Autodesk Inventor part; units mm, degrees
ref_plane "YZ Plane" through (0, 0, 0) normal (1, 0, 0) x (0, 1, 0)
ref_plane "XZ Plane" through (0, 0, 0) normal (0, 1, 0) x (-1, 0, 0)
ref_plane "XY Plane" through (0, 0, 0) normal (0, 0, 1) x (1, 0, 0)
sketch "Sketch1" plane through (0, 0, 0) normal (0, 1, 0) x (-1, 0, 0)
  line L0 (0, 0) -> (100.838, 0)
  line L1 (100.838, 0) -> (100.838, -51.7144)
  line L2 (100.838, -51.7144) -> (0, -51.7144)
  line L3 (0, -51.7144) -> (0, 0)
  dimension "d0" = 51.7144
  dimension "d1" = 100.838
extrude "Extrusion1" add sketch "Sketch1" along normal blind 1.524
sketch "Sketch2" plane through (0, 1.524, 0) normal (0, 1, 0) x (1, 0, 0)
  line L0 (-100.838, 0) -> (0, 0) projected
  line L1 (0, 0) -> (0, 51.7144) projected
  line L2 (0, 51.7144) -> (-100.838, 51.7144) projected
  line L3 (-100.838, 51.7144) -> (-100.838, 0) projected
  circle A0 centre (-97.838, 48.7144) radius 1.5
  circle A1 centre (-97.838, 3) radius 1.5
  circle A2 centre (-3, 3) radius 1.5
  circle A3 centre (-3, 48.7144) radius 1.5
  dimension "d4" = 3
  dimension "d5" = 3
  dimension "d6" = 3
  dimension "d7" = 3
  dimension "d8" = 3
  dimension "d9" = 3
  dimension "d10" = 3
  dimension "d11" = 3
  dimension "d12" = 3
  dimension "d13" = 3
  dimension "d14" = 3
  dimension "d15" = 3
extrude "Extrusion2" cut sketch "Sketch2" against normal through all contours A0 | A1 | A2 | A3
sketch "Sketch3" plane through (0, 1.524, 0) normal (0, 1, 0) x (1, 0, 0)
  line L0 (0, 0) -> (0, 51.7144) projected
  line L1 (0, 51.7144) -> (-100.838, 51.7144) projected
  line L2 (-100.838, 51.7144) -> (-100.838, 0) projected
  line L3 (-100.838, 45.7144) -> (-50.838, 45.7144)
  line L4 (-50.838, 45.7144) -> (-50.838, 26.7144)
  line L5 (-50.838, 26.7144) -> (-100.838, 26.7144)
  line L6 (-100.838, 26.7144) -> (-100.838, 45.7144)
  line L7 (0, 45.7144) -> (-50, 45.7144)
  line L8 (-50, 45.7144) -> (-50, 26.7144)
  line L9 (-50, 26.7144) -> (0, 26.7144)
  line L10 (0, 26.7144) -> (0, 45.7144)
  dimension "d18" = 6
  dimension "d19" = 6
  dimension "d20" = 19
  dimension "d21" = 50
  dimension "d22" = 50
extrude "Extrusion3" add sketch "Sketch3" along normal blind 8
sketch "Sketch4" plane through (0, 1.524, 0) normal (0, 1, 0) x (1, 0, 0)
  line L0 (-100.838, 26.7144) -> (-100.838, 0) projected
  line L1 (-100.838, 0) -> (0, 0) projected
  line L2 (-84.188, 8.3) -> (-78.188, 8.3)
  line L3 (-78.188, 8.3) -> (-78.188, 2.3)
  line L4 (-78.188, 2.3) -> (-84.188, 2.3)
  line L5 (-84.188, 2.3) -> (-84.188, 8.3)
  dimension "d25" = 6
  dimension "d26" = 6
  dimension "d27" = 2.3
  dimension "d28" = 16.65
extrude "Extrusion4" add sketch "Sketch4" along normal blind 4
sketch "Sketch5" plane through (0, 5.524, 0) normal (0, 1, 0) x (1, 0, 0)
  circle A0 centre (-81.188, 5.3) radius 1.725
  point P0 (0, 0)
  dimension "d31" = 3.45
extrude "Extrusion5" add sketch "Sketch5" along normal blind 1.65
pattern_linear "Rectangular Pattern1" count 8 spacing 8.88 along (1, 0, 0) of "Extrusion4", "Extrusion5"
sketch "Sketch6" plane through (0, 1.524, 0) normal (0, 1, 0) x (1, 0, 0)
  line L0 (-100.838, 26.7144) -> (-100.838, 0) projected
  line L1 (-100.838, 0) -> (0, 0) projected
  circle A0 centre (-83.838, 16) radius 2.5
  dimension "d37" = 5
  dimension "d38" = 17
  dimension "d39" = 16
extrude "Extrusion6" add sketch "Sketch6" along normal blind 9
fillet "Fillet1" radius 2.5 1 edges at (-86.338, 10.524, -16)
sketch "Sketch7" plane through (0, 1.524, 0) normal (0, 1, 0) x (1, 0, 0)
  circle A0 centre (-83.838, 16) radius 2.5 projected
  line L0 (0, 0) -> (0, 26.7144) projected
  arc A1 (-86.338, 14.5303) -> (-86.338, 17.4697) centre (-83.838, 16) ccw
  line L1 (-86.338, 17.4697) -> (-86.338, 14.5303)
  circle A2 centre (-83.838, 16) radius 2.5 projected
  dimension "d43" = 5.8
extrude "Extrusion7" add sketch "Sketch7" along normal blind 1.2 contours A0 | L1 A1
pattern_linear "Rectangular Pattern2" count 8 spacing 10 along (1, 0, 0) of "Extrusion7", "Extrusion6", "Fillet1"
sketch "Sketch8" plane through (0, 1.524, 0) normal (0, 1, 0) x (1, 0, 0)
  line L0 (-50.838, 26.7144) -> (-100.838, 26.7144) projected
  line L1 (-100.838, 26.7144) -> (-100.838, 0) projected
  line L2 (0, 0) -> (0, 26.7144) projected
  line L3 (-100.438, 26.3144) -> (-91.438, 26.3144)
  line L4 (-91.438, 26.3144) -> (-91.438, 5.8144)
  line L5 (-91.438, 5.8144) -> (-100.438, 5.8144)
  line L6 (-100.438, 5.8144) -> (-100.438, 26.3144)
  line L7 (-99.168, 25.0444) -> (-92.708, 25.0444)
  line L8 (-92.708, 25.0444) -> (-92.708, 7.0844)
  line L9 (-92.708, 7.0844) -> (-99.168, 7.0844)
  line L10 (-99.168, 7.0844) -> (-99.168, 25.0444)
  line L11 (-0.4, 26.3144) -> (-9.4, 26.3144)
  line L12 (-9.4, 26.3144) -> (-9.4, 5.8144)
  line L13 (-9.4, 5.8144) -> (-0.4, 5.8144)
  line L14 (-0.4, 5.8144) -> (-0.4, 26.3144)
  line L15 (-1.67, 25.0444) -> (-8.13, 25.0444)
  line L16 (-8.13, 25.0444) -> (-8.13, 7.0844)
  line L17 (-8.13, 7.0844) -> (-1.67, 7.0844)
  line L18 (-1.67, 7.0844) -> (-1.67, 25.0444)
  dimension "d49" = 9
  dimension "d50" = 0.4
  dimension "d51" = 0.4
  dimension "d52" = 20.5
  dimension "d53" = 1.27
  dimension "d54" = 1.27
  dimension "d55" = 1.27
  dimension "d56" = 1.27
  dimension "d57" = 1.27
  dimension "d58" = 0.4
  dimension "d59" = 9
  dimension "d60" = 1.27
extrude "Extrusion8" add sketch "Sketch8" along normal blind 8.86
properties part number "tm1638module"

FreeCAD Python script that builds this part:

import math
import FreeCAD as App
import Part
import Sketcher

V = App.Vector
Q = App.Units.Quantity


def edges_at(feature, points):
    """Names of the edges that pass closest to the given points."""
    edges = feature.Shape.Edges
    near = lambda p: min(range(len(edges)), key=lambda i: edges[i].distToShape(Part.Vertex(*p))[0])
    return sorted({f"Edge{near(p) + 1}" for p in points})

doc = App.newDocument("Part")
body = doc.addObject("PartDesign::Body", "Body")

sketch1 = doc.addObject("Sketcher::SketchObject", "Sketch")
body.addObject(sketch1)
sketch1.AttachmentSupport = (doc.XZ_Plane, [""])
sketch1.MapMode = "FlatFace"
sketch1.addGeometry([
    Part.LineSegment(V(-101, 0, 0), V(0, 0, 0)),
    Part.LineSegment(V(0, 0, 0), V(0, -52, 0)),
    Part.LineSegment(V(0, -52, 0), V(-101, -52, 0)),
    Part.LineSegment(V(-101, -52, 0), V(-101, 0, 0)),
], False)
sketch1.addConstraint([
    Sketcher.Constraint("Coincident", 0, 2, 1, 1),
    Sketcher.Constraint("Coincident", 1, 2, 2, 1),
    Sketcher.Constraint("Coincident", 2, 2, 3, 1),
    Sketcher.Constraint("Coincident", 3, 2, 0, 1),
    Sketcher.Constraint("Horizontal", 0),
    Sketcher.Constraint("Vertical", 1),
    Sketcher.Constraint("Horizontal", 2),
    Sketcher.Constraint("Vertical", 3),
    Sketcher.Constraint("Coincident", 0, 2, -1, 1),
    Sketcher.Constraint("DistanceX", 0, 1, 0, 2, Q("100.838 mm")),
    Sketcher.Constraint("DistanceY", 1, 2, 1, 1, Q("51.7144 mm")),
])
pad1 = doc.addObject("PartDesign::Pad", "Pad")
body.addObject(pad1)
pad1.Profile = sketch1
pad1.Length = 1.524
pad1.Reversed = True

sketch2 = doc.addObject("Sketcher::SketchObject", "Sketch001")
body.addObject(sketch2)
sketch2.AttachmentSupport = (doc.XZ_Plane, [""])
sketch2.MapMode = "FlatFace"
sketch2.AttachmentOffset = App.Placement(V(0, 0, -1.524), App.Rotation())
sketch2.addGeometry([
    Part.Circle(V(-97.8, -48.7, 0), V(0, 0, 1), 1.5),
    Part.Circle(V(-97.8, -3, 0), V(0, 0, 1), 1.5),
    Part.Circle(V(-3, -3, 0), V(0, 0, 1), 1.5),
    Part.Circle(V(-3, -48.7, 0), V(0, 0, 1), 1.5),
], False)
sketch2.addConstraint([
    Sketcher.Constraint("Equal", 0, 1),
    Sketcher.Constraint("Equal", 1, 2),
    Sketcher.Constraint("Equal", 2, 3),
    Sketcher.Constraint("Horizontal", 1, 3, 2, 3),
    Sketcher.Constraint("Horizontal", 0, 3, 3, 3),
    Sketcher.Constraint("Vertical", 0, 3, 1, 3),
    Sketcher.Constraint("Vertical", 2, 3, 3, 3),
    Sketcher.Constraint("Diameter", 0, Q("3 mm")),
    Sketcher.Constraint("DistanceY", 1, 3, -1, 1, Q("3 mm")),
    Sketcher.Constraint("DistanceX", 2, 3, -1, 1, Q("3 mm")),
    Sketcher.Constraint("DistanceX", 0, 3, -1, 1, Q("97.838 mm")),
    Sketcher.Constraint("DistanceY", 0, 3, -1, 1, Q("48.7144 mm")),
])
pocket1 = doc.addObject("PartDesign::Pocket", "Pocket")
body.addObject(pocket1)
pocket1.Profile = sketch2
pocket1.Type = "ThroughAll"
pocket1.Reversed = True

sketch3 = doc.addObject("Sketcher::SketchObject", "Sketch002")
body.addObject(sketch3)
sketch3.AttachmentSupport = (doc.XZ_Plane, [""])
sketch3.MapMode = "FlatFace"
sketch3.AttachmentOffset = App.Placement(V(0, 0, -1.524), App.Rotation())
sketch3.addGeometry([
    Part.LineSegment(V(-50, -27, 0), V(0, -27, 0)),
    Part.LineSegment(V(0, -27, 0), V(0, -46, 0)),
    Part.LineSegment(V(0, -46, 0), V(-50, -46, 0)),
    Part.LineSegment(V(-50, -46, 0), V(-50, -27, 0)),
    Part.LineSegment(V(-51, -46, 0), V(-101, -46, 0)),
    Part.LineSegment(V(-101, -46, 0), V(-101, -27, 0)),
    Part.LineSegment(V(-101, -27, 0), V(-51, -27, 0)),
    Part.LineSegment(V(-51, -27, 0), V(-51, -46, 0)),
], False)
sketch3.addConstraint([
    Sketcher.Constraint("Coincident", 0, 2, 1, 1),
    Sketcher.Constraint("Coincident", 1, 2, 2, 1),
    Sketcher.Constraint("Coincident", 2, 2, 3, 1),
    Sketcher.Constraint("Coincident", 3, 2, 0, 1),
    Sketcher.Constraint("Coincident", 4, 2, 5, 1),
    Sketcher.Constraint("Coincident", 5, 2, 6, 1),
    Sketcher.Constraint("Coincident", 6, 2, 7, 1),
    Sketcher.Constraint("Coincident", 7, 2, 4, 1),
    Sketcher.Constraint("Horizontal", 0),
    Sketcher.Constraint("Vertical", 1),
    Sketcher.Constraint("Horizontal", 2),
    Sketcher.Constraint("Vertical", 3),
    Sketcher.Constraint("Horizontal", 4),
    Sketcher.Constraint("Vertical", 5),
    Sketcher.Constraint("Horizontal", 6),
    Sketcher.Constraint("Vertical", 7),
    Sketcher.Constraint("PointOnObject", 0, 2, -2),
    Sketcher.Constraint("Horizontal", 2, 2, 4, 2),
    Sketcher.Constraint("Horizontal", 3, 2, 5, 2),
    Sketcher.Constraint("Equal", 2, 4),
    Sketcher.Constraint("DistanceX", 0, 1, 0, 2, Q("50 mm")),
    Sketcher.Constraint("DistanceY", 1, 2, 1, 1, Q("19 mm")),
    Sketcher.Constraint("DistanceX", 4, 2, -1, 1, Q("100.838 mm")),
    Sketcher.Constraint("DistanceY", 0, 2, -1, 1, Q("26.7144 mm")),
])
pad2 = doc.addObject("PartDesign::Pad", "Pad001")
body.addObject(pad2)
pad2.Profile = sketch3
pad2.Length = 8
pad2.Reversed = True

sketch4 = doc.addObject("Sketcher::SketchObject", "Sketch003")
body.addObject(sketch4)
sketch4.AttachmentSupport = (doc.XZ_Plane, [""])
sketch4.MapMode = "FlatFace"
sketch4.AttachmentOffset = App.Placement(V(0, 0, -1.524), App.Rotation())
sketch4.addGeometry([
    Part.LineSegment(V(-78, -8, 0), V(-84, -8, 0)),
    Part.LineSegment(V(-84, -8, 0), V(-84, -2, 0)),
    Part.LineSegment(V(-84, -2, 0), V(-78, -2, 0)),
    Part.LineSegment(V(-78, -2, 0), V(-78, -8, 0)),
], False)
sketch4.addConstraint([
    Sketcher.Constraint("Coincident", 0, 2, 1, 1),
    Sketcher.Constraint("Coincident", 1, 2, 2, 1),
    Sketcher.Constraint("Coincident", 2, 2, 3, 1),
    Sketcher.Constraint("Coincident", 3, 2, 0, 1),
    Sketcher.Constraint("Horizontal", 0),
    Sketcher.Constraint("Vertical", 1),
    Sketcher.Constraint("Horizontal", 2),
    Sketcher.Constraint("Vertical", 3),
    Sketcher.Constraint("Equal", 2, 1),
    Sketcher.Constraint("DistanceX", 0, 2, 0, 1, Q("6 mm")),
    Sketcher.Constraint("DistanceY", 1, 2, -1, 1, Q("2.3 mm")),
    Sketcher.Constraint("DistanceX", 0, 2, -1, 1, Q("84.188 mm")),
])
pad3 = doc.addObject("PartDesign::Pad", "Pad002")
body.addObject(pad3)
pad3.Profile = sketch4
pad3.Length = 4
pad3.Reversed = True

sketch5 = doc.addObject("Sketcher::SketchObject", "Sketch004")
body.addObject(sketch5)
sketch5.AttachmentSupport = (doc.XZ_Plane, [""])
sketch5.MapMode = "FlatFace"
sketch5.AttachmentOffset = App.Placement(V(0, 0, -5.524), App.Rotation())
sketch5.addGeometry(Part.Circle(V(-81.2, -5.3, 0), V(0, 0, 1), 1.7), False)
sketch5.addConstraint([
    Sketcher.Constraint("Diameter", 0, Q("3.45 mm")),
    Sketcher.Constraint("DistanceY", 0, 3, -1, 1, Q("5.3 mm")),
    Sketcher.Constraint("DistanceX", 0, 3, -1, 1, Q("81.188 mm")),
])
pad4 = doc.addObject("PartDesign::Pad", "Pad003")
body.addObject(pad4)
pad4.Profile = sketch5
pad4.Length = 1.65
pad4.Reversed = True
doc.recompute()

linearpattern = doc.addObject("PartDesign::LinearPattern", "LinearPattern")
body.addObject(linearpattern)
linearpattern.Originals = [pad3, pad4]
linearpattern.Direction = (doc.X_Axis, [""])
linearpattern.Mode = "offset"
linearpattern.Offset = 8.88
linearpattern.Occurrences = 8
body.Tip = linearpattern

sketch6 = doc.addObject("Sketcher::SketchObject", "Sketch005")
body.addObject(sketch6)
sketch6.AttachmentSupport = (doc.XZ_Plane, [""])
sketch6.MapMode = "FlatFace"
sketch6.AttachmentOffset = App.Placement(V(0, 0, -1.524), App.Rotation())
sketch6.addGeometry(Part.Circle(V(-83.8, -16, 0), V(0, 0, 1), 2.5), False)
sketch6.addConstraint([
    Sketcher.Constraint("Diameter", 0, Q("5 mm")),
    Sketcher.Constraint("DistanceY", 0, 3, -1, 1, Q("16 mm")),
    Sketcher.Constraint("DistanceX", 0, 3, -1, 1, Q("83.838 mm")),
])
pad5 = doc.addObject("PartDesign::Pad", "Pad004")
body.addObject(pad5)
pad5.Profile = sketch6
pad5.Length = 9
pad5.Reversed = True
doc.recompute()

fillet = doc.addObject("PartDesign::Fillet", "Fillet")
body.addObject(fillet)
fillet.Base = (pad5, edges_at(pad5, [(-86.338, 10.524, -16)]))
fillet.Radius = 2.5

sketch7 = doc.addObject("Sketcher::SketchObject", "Sketch006")
body.addObject(sketch7)
sketch7.AttachmentSupport = (doc.XZ_Plane, [""])
sketch7.MapMode = "FlatFace"
sketch7.AttachmentOffset = App.Placement(V(0, 0, -1.524), App.Rotation())
sketch7.addGeometry([
    Part.LineSegment(V(-86.3, -17.5, 0), V(-86.3, -14.5, 0)),
    Part.ArcOfCircle(Part.Circle(V(-83.8, -16, 0), V(0, 0, 1), 2.9), math.radians(-150), math.radians(150)),
], False)
sketch7.addConstraint([
    Sketcher.Constraint("Coincident", 0, 1, 1, 1),
    Sketcher.Constraint("Coincident", 1, 2, 0, 2),
    Sketcher.Constraint("Vertical", 0),
    Sketcher.Constraint("Radius", 1, Q("2.9 mm")),
    Sketcher.Constraint("DistanceY", 1, 3, -1, 1, Q("16 mm")),
    Sketcher.Constraint("DistanceX", 0, 1, 1, 3, Q("2.5 mm")),
    Sketcher.Constraint("DistanceX", 1, 3, -1, 1, Q("83.838 mm")),
])
pad6 = doc.addObject("PartDesign::Pad", "Pad005")
body.addObject(pad6)
pad6.Profile = sketch7
pad6.Length = 1.2
pad6.Reversed = True
doc.recompute()

linearpattern2 = doc.addObject("PartDesign::LinearPattern", "LinearPattern001")
body.addObject(linearpattern2)
linearpattern2.Originals = [pad6, pad5, fillet]
linearpattern2.Direction = (doc.X_Axis, [""])
linearpattern2.Mode = "offset"
linearpattern2.Offset = 10
linearpattern2.Occurrences = 8
body.Tip = linearpattern2

sketch8 = doc.addObject("Sketcher::SketchObject", "Sketch007")
body.addObject(sketch8)
sketch8.AttachmentSupport = (doc.XZ_Plane, [""])
sketch8.MapMode = "FlatFace"
sketch8.AttachmentOffset = App.Placement(V(0, 0, -1.524), App.Rotation())
sketch8.addGeometry([
    Part.LineSegment(V(-91, -26, 0), V(-100, -26, 0)),
    Part.LineSegment(V(-100, -26, 0), V(-100, -6, 0)),
    Part.LineSegment(V(-100, -6, 0), V(-91, -6, 0)),
    Part.LineSegment(V(-91, -6, 0), V(-91, -26, 0)),
    Part.LineSegment(V(-99, -7, 0), V(-99, -25, 0)),
    Part.LineSegment(V(-99, -25, 0), V(-93, -25, 0)),
    Part.LineSegment(V(-93, -25, 0), V(-93, -7, 0)),
    Part.LineSegment(V(-93, -7, 0), V(-99, -7, 0)),
    Part.LineSegment(V(0, -6, 0), V(0, -26, 0)),
    Part.LineSegment(V(0, -26, 0), V(-9, -26, 0)),
    Part.LineSegment(V(-9, -26, 0), V(-9, -6, 0)),
    Part.LineSegment(V(-9, -6, 0), V(0, -6, 0)),
    Part.LineSegment(V(-8, -25, 0), V(-2, -25, 0)),
    Part.LineSegment(V(-2, -25, 0), V(-2, -7, 0)),
    Part.LineSegment(V(-2, -7, 0), V(-8, -7, 0)),
    Part.LineSegment(V(-8, -7, 0), V(-8, -25, 0)),
], False)
sketch8.addConstraint([
    Sketcher.Constraint("Coincident", 0, 2, 1, 1),
    Sketcher.Constraint("Coincident", 1, 2, 2, 1),
    Sketcher.Constraint("Coincident", 2, 2, 3, 1),
    Sketcher.Constraint("Coincident", 3, 2, 0, 1),
    Sketcher.Constraint("Coincident", 4, 2, 5, 1),
    Sketcher.Constraint("Coincident", 5, 2, 6, 1),
    Sketcher.Constraint("Coincident", 6, 2, 7, 1),
    Sketcher.Constraint("Coincident", 7, 2, 4, 1),
    Sketcher.Constraint("Coincident", 8, 2, 9, 1),
    Sketcher.Constraint("Coincident", 9, 2, 10, 1),
    Sketcher.Constraint("Coincident", 10, 2, 11, 1),
    Sketcher.Constraint("Coincident", 11, 2, 8, 1),
    Sketcher.Constraint("Coincident", 12, 2, 13, 1),
    Sketcher.Constraint("Coincident", 13, 2, 14, 1),
    Sketcher.Constraint("Coincident", 14, 2, 15, 1),
    Sketcher.Constraint("Coincident", 15, 2, 12, 1),
    Sketcher.Constraint("Horizontal", 0),
    Sketcher.Constraint("Vertical", 1),
    Sketcher.Constraint("Horizontal", 2),
    Sketcher.Constraint("Vertical", 3),
    Sketcher.Constraint("Vertical", 4),
    Sketcher.Constraint("Horizontal", 5),
    Sketcher.Constraint("Vertical", 6),
    Sketcher.Constraint("Horizontal", 7),
    Sketcher.Constraint("Vertical", 8),
    Sketcher.Constraint("Horizontal", 9),
    Sketcher.Constraint("Vertical", 10),
    Sketcher.Constraint("Horizontal", 11),
    Sketcher.Constraint("Horizontal", 12),
    Sketcher.Constraint("Vertical", 13),
    Sketcher.Constraint("Horizontal", 14),
    Sketcher.Constraint("Vertical", 15),
    Sketcher.Constraint("Horizontal", 3, 2, 8, 2),
    Sketcher.Constraint("Horizontal", 2, 2, 10, 2),
    Sketcher.Constraint("Horizontal", 5, 2, 12, 2),
    Sketcher.Constraint("Horizontal", 7, 2, 13, 2),
    Sketcher.Constraint("Equal", 2, 9),
    Sketcher.Constraint("Equal", 7, 12),
    Sketcher.Constraint("DistanceX", 0, 2, 0, 1, Q("9 mm")),
    Sketcher.Constraint("DistanceY", 1, 1, 1, 2, Q("20.5 mm")),
    Sketcher.Constraint("DistanceX", 8, 2, -1, 1, Q("0.4 mm")),
    Sketcher.Constraint("DistanceX", 0, 2, 4, 2, Q("1.27 mm")),
    Sketcher.Constraint("DistanceY", 0, 2, 4, 2, Q("1.27 mm")),
    Sketcher.Constraint("DistanceX", 5, 2, 3, 2, Q("1.27 mm")),
    Sketcher.Constraint("DistanceY", 6, 2, 2, 2, Q("1.27 mm")),
    Sketcher.Constraint("DistanceX", 12, 2, 8, 2, Q("1.27 mm")),
    Sketcher.Constraint("DistanceX", 0, 2, -1, 1, Q("100.438 mm")),
    Sketcher.Constraint("DistanceY", 0, 2, -1, 1, Q("26.3144 mm")),
])
pad7 = doc.addObject("PartDesign::Pad", "Pad006")
body.addObject(pad7)
pad7.Profile = sketch8
pad7.Length = 8.86
pad7.Reversed = True

doc.recompute()
